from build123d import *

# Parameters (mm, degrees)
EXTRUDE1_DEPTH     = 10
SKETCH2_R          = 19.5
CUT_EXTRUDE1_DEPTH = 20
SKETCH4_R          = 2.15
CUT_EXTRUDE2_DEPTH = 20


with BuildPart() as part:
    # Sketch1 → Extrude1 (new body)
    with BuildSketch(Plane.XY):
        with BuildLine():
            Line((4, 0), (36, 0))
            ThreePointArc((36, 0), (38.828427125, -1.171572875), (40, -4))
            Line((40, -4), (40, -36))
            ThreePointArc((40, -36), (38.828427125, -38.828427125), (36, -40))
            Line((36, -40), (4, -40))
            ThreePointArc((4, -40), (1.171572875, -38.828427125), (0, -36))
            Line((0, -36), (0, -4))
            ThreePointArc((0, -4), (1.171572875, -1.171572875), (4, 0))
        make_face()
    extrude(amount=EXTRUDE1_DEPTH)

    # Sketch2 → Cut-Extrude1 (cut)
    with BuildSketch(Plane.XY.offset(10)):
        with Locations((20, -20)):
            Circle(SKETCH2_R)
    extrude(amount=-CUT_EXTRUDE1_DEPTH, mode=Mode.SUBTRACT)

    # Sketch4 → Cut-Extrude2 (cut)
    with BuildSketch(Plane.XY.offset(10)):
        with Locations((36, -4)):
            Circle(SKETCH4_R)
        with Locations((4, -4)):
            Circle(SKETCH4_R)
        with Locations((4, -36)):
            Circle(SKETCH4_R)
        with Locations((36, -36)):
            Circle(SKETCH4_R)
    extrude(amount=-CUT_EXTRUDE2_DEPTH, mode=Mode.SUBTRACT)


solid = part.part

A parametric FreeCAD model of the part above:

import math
import FreeCAD as App
import Part
import Sketcher
Q = App.Units.Quantity

doc = App.newDocument("Part")
body = doc.addObject("PartDesign::Body", "Body")

# Sketch on XY plane
sketch1 = body.newObject("Sketcher::SketchObject", "Sketch")
sketch1.AttachmentSupport = (doc.getObject("XY_Plane"), [""])
sketch1.MapMode = "FlatFace"
sketch1.addGeometry(Part.LineSegment(App.Vector(36, 0, 0), App.Vector(4, 0, 0)), False)
sketch1.addGeometry(Part.ArcOfCircle(Part.Circle(App.Vector(4, -4, 0), App.Vector(0, 0, 1), 4), math.radians(90), math.radians(180)), False)
sketch1.addGeometry(Part.LineSegment(App.Vector(0, -4, 0), App.Vector(0, -36, 0)), False)
sketch1.addGeometry(Part.ArcOfCircle(Part.Circle(App.Vector(4, -36, 0), App.Vector(0, 0, 1), 4), math.radians(180), math.radians(270)), False)
sketch1.addGeometry(Part.LineSegment(App.Vector(4, -40, 0), App.Vector(36, -40, 0)), False)
sketch1.addGeometry(Part.ArcOfCircle(Part.Circle(App.Vector(36, -36, 0), App.Vector(0, 0, 1), 4), math.radians(-90), math.radians(0)), False)
sketch1.addGeometry(Part.LineSegment(App.Vector(40, -36, 0), App.Vector(40, -4, 0)), False)
sketch1.addGeometry(Part.ArcOfCircle(Part.Circle(App.Vector(36, -4, 0), App.Vector(0, 0, 1), 4), math.radians(0), math.radians(90)), False)
sketch1.addConstraint(Sketcher.Constraint("Tangent", 0, 2, 1, 1))
sketch1.addConstraint(Sketcher.Constraint("Tangent", 1, 2, 2, 1))
sketch1.addConstraint(Sketcher.Constraint("Tangent", 2, 2, 3, 1))
sketch1.addConstraint(Sketcher.Constraint("Tangent", 3, 2, 4, 1))
sketch1.addConstraint(Sketcher.Constraint("Tangent", 4, 2, 5, 1))
sketch1.addConstraint(Sketcher.Constraint("Tangent", 5, 2, 6, 1))
sketch1.addConstraint(Sketcher.Constraint("Tangent", 6, 2, 7, 1))
sketch1.addConstraint(Sketcher.Constraint("Tangent", 7, 2, 0, 1))
sketch1.addConstraint(Sketcher.Constraint("Horizontal", 0))
sketch1.addConstraint(Sketcher.Constraint("Vertical", 2))
sketch1.addConstraint(Sketcher.Constraint("Horizontal", 4))
sketch1.addConstraint(Sketcher.Constraint("Vertical", 6))
sketch1.addConstraint(Sketcher.Constraint("Equal", 1, 3))
sketch1.addConstraint(Sketcher.Constraint("Equal", 3, 5))
sketch1.addConstraint(Sketcher.Constraint("Equal", 5, 7))
sketch1.addConstraint(Sketcher.Constraint("PointOnObject", 0, 2, -1))
sketch1.addConstraint(Sketcher.Constraint("PointOnObject", 1, 2, -2))
sketch1.addConstraint(Sketcher.Constraint("Equal", 4, 2))
sketch1.addConstraint(Sketcher.Constraint("Radius", 1, Q("4 mm")))
sketch1.addConstraint(Sketcher.Constraint("DistanceX", 0, 2, 0, 1, Q("32 mm")))
pad1 = body.newObject("PartDesign::Pad", "Pad")
pad1.Profile = sketch1
pad1.Length = 10

# Sketch on XY plane
sketch2 = body.newObject("Sketcher::SketchObject", "Sketch001")
sketch2.AttachmentSupport = (doc.getObject("XY_Plane"), [""])
sketch2.MapMode = "FlatFace"
sketch2.AttachmentOffset = App.Placement(App.Vector(0, 0, 10), App.Rotation())
sketch2.addGeometry(Part.Circle(App.Vector(20, -20, 0), App.Vector(0, 0, 1), 20), False)
sketch2.addConstraint(Sketcher.Constraint("Diameter", 0, Q("39 mm")))
sketch2.addConstraint(Sketcher.Constraint("DistanceX", -1, 1, 0, 3, Q("20 mm")))
sketch2.addConstraint(Sketcher.Constraint("DistanceY", 0, 3, -1, 1, Q("20 mm")))
pocket1 = body.newObject("PartDesign::Pocket", "Pocket")
pocket1.Profile = sketch2
pocket1.Length = 20

# Sketch on XY plane
sketch3 = body.newObject("Sketcher::SketchObject", "Sketch002")
sketch3.AttachmentSupport = (doc.getObject("XY_Plane"), [""])
sketch3.MapMode = "FlatFace"
sketch3.AttachmentOffset = App.Placement(App.Vector(0, 0, 10), App.Rotation())
sketch3.addGeometry(Part.Circle(App.Vector(36, -4, 0), App.Vector(0, 0, 1), 2.1), False)
sketch3.addGeometry(Part.Circle(App.Vector(4, -4, 0), App.Vector(0, 0, 1), 2.1), False)
sketch3.addGeometry(Part.Circle(App.Vector(4, -36, 0), App.Vector(0, 0, 1), 2.1), False)
sketch3.addGeometry(Part.Circle(App.Vector(36, -36, 0), App.Vector(0, 0, 1), 2.1), False)
sketch3.addConstraint(Sketcher.Constraint("Equal", 0, 1))
sketch3.addConstraint(Sketcher.Constraint("Equal", 1, 2))
sketch3.addConstraint(Sketcher.Constraint("Equal", 2, 3))
sketch3.addConstraint(Sketcher.Constraint("Horizontal", 0, 3, 1, 3))
sketch3.addConstraint(Sketcher.Constraint("Horizontal", 2, 3, 3, 3))
sketch3.addConstraint(Sketcher.Constraint("Vertical", 1, 3, 2, 3))
sketch3.addConstraint(Sketcher.Constraint("Vertical", 0, 3, 3, 3))
sketch3.addConstraint(Sketcher.Constraint("Diameter", 0, Q("4.3 mm")))
sketch3.addConstraint(Sketcher.Constraint("DistanceX", -1, 1, 0, 3, Q("36 mm")))
sketch3.addConstraint(Sketcher.Constraint("DistanceY", 0, 3, -1, 1, Q("4 mm")))
sketch3.addConstraint(Sketcher.Constraint("DistanceX", -1, 1, 1, 3, Q("4 mm")))
sketch3.addConstraint(Sketcher.Constraint("DistanceY", 2, 3, -1, 1, Q("36 mm")))
pocket2 = body.newObject("PartDesign::Pocket", "Pocket001")
pocket2.Profile = sketch3
pocket2.Length = 20

doc.recompute()
